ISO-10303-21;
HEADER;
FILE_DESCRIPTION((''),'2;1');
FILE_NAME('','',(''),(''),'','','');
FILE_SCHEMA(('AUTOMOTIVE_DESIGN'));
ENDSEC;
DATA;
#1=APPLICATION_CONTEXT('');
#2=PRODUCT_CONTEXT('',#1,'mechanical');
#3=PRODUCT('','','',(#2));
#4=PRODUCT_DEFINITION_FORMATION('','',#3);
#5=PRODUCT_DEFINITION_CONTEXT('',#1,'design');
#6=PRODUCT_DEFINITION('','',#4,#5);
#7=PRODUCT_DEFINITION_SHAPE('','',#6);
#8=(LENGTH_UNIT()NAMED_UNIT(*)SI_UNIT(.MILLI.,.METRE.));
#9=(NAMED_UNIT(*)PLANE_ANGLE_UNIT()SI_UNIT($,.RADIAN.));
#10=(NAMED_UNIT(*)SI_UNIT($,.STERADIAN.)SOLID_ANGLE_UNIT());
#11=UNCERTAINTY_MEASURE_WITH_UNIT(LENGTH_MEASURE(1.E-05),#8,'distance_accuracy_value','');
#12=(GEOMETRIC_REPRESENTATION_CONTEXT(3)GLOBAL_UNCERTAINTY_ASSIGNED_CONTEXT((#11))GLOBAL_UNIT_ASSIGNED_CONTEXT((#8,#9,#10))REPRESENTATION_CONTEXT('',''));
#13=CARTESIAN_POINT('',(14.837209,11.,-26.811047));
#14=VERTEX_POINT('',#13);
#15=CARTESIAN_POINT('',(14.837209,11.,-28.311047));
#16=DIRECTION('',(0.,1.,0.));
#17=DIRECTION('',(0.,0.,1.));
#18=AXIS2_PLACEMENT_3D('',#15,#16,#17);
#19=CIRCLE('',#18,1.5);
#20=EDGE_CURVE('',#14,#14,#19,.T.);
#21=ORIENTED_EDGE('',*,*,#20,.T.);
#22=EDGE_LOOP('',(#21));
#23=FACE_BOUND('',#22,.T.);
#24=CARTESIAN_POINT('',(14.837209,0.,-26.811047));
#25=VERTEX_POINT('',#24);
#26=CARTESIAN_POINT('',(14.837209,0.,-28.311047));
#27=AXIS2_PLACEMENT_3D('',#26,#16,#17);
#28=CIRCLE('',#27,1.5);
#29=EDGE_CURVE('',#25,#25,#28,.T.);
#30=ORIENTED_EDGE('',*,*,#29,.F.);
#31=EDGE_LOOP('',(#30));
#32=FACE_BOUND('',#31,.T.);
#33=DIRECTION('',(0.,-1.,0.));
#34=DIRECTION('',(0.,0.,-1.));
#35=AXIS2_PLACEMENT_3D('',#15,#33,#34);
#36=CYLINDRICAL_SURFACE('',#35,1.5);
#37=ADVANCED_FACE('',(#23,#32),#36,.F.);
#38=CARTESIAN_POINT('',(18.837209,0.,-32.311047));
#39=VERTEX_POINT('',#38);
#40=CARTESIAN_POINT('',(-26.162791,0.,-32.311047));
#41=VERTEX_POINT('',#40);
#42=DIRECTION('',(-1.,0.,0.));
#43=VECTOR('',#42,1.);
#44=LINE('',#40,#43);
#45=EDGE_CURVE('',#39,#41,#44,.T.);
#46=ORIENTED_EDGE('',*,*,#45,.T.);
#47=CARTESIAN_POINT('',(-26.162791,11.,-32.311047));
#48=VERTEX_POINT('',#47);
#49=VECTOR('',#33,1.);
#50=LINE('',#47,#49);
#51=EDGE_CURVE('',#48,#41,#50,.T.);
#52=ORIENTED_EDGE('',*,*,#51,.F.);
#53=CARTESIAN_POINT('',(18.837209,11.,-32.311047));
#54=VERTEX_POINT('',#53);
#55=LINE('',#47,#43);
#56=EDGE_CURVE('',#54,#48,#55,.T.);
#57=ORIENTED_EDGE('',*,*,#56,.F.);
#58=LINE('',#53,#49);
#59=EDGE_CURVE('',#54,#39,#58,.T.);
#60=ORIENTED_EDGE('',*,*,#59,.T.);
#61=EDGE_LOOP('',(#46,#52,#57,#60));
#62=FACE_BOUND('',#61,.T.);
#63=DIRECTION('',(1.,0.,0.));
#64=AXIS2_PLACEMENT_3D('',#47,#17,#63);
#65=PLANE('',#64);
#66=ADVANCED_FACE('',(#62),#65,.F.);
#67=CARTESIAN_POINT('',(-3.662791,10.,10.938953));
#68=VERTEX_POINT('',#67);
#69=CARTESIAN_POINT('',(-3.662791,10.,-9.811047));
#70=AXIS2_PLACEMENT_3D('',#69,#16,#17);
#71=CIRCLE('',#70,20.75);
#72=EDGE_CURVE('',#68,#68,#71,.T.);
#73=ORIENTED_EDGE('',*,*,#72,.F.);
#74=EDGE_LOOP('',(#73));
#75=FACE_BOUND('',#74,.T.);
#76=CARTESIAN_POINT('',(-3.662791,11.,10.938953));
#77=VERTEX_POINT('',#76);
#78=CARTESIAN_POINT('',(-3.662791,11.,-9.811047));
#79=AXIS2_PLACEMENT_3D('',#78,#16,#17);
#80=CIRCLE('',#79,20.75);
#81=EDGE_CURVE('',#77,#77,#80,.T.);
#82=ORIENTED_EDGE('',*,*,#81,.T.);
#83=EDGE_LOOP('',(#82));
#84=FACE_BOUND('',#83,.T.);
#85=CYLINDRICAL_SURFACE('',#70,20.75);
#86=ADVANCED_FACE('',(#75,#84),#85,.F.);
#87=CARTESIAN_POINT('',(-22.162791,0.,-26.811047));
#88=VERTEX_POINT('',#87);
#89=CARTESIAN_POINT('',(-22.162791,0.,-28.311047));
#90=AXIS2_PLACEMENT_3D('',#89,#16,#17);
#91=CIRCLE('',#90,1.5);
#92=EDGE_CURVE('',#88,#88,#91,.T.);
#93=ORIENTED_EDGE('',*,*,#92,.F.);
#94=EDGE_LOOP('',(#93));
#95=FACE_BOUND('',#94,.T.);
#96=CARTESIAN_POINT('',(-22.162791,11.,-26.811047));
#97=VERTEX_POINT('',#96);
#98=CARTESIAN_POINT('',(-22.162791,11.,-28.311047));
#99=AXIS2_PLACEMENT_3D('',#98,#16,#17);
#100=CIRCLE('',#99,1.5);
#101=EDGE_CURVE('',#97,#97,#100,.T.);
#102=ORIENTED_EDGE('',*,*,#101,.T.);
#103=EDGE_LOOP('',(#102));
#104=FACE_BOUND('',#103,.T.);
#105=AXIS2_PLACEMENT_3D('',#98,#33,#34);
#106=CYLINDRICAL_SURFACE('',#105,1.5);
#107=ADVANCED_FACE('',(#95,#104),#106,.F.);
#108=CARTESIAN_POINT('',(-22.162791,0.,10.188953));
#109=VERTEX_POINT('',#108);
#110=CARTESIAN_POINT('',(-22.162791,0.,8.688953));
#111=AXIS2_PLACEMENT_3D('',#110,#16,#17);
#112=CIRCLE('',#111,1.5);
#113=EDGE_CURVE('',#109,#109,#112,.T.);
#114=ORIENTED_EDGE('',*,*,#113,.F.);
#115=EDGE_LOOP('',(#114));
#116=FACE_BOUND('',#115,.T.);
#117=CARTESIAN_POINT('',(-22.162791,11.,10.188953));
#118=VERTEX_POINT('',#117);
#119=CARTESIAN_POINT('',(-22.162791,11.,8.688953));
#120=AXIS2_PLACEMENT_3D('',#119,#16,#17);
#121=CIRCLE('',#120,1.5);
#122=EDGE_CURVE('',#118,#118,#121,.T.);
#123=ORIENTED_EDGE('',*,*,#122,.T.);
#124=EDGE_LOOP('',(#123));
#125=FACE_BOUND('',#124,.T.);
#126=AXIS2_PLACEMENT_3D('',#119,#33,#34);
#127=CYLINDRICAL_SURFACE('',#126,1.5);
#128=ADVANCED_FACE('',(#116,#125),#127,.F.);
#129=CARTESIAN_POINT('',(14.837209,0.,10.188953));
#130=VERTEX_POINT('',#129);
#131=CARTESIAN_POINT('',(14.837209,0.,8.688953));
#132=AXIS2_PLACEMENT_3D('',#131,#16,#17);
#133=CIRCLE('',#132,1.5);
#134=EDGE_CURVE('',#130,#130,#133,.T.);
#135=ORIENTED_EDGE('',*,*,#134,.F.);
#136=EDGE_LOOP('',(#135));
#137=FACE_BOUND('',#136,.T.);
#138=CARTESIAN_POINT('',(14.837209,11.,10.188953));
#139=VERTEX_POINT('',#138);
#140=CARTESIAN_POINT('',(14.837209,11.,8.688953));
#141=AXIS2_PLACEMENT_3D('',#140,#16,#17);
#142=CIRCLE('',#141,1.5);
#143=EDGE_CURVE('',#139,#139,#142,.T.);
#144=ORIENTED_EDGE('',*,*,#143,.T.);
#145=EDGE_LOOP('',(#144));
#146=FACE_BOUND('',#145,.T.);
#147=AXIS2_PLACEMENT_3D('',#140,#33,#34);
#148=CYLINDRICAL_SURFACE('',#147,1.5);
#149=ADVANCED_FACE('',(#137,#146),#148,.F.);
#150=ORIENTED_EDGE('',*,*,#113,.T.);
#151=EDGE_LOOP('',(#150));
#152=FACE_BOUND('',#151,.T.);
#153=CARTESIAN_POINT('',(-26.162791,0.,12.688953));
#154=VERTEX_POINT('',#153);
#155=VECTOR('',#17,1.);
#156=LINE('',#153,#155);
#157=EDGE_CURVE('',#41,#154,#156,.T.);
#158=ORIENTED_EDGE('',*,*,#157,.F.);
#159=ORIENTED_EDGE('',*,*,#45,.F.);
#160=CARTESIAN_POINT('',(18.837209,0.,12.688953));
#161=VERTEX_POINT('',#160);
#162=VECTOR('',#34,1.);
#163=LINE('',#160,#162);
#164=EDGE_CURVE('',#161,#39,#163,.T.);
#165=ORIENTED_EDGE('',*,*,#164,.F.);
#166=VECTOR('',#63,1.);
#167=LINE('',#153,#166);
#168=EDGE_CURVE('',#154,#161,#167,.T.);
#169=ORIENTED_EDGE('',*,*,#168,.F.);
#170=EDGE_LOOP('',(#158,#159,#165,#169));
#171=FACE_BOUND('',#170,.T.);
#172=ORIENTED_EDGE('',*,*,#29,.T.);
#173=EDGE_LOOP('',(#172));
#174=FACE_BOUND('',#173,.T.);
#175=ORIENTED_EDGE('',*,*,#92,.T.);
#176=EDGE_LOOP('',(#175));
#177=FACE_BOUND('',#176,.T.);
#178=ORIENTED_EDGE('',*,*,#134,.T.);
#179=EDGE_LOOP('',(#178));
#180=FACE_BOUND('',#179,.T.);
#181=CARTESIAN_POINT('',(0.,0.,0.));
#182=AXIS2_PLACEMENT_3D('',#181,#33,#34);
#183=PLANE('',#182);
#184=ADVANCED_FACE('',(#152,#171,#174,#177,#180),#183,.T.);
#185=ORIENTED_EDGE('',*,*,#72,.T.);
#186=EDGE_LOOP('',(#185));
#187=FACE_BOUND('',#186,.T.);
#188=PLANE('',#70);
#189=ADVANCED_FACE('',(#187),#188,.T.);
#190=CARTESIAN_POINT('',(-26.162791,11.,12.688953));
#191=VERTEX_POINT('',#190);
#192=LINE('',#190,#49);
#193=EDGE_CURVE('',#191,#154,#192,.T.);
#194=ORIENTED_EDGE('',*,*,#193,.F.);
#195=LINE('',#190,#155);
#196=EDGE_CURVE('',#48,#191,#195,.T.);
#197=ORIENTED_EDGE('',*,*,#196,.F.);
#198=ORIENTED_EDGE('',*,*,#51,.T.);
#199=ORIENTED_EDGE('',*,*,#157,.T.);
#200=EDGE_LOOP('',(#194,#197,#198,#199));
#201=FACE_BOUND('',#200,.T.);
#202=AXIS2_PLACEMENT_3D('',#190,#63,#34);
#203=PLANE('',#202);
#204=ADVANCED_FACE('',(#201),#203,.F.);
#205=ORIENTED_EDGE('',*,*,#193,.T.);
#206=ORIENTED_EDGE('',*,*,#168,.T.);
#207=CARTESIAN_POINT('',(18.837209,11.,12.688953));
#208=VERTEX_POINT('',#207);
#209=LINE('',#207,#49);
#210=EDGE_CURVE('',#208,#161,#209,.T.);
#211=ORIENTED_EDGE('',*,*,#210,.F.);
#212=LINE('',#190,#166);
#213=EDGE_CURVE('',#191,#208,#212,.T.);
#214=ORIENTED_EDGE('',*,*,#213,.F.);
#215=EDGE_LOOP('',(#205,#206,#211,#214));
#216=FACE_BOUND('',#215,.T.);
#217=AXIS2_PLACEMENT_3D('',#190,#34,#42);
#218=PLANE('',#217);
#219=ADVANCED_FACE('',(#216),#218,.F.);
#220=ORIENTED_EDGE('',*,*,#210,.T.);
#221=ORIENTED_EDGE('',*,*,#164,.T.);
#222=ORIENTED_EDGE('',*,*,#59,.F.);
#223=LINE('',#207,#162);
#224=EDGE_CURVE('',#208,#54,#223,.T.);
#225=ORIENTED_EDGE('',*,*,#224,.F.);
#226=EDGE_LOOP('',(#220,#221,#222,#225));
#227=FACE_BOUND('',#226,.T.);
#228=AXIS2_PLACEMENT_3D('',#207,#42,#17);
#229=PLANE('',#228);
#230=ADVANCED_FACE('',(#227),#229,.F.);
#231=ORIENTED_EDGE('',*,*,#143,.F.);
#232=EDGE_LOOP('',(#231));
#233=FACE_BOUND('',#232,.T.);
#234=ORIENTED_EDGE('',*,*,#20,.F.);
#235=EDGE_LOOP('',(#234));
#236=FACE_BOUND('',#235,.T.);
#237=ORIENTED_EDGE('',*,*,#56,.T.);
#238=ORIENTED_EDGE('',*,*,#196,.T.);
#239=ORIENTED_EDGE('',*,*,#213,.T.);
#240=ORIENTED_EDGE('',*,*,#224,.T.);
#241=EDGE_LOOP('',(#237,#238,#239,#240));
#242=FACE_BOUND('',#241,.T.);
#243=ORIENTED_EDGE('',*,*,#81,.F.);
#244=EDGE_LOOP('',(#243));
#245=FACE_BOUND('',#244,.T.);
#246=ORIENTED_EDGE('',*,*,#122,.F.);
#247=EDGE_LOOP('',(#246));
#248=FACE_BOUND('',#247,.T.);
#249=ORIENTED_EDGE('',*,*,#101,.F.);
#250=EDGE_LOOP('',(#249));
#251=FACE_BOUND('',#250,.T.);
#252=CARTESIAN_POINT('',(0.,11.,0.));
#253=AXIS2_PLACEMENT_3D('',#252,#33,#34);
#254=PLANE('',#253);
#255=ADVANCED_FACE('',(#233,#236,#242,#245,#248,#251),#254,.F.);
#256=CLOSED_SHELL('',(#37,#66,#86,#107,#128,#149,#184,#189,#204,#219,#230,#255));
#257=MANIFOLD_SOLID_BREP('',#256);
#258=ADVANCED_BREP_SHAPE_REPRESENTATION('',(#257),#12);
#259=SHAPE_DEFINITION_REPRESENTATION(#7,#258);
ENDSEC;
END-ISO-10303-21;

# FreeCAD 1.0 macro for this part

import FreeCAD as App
import Part
import Sketcher

V = App.Vector

doc = App.newDocument("Part")
body = doc.addObject("PartDesign::Body", "Body")

sketch1 = doc.addObject("Sketcher::SketchObject", "Sketch")
body.addObject(sketch1)
sketch1.AttachmentSupport = (doc.XZ_Plane, [""])
sketch1.MapMode = "FlatFace"
sketch1.addGeometry([
    Part.LineSegment(V(-26.2, -32.3, 0), V(-26.2, 12.7, 0)),
    Part.LineSegment(V(-26.2, 12.7, 0), V(18.8, 12.7, 0)),
    Part.LineSegment(V(18.8, 12.7, 0), V(18.8, -32.3, 0)),
    Part.LineSegment(V(18.8, -32.3, 0), V(-26.2, -32.3, 0)),
    Part.Circle(V(-22.2, 8.7, 0), V(0, 0, 1), 1.5),
    Part.Circle(V(14.8, 8.7, 0), V(0, 0, 1), 1.5),
    Part.Circle(V(-22.2, -28.3, 0), V(0, 0, 1), 1.5),
    Part.Circle(V(14.8, -28.3, 0), V(0, 0, 1), 1.5),
], False)
sketch1.addConstraint([
    Sketcher.Constraint("Coincident", 0, 2, 1, 1),
    Sketcher.Constraint("Coincident", 1, 2, 2, 1),
    Sketcher.Constraint("Coincident", 2, 2, 3, 1),
    Sketcher.Constraint("Coincident", 3, 2, 0, 1),
    Sketcher.Constraint("Vertical", 0),
    Sketcher.Constraint("Horizontal", 1),
    Sketcher.Constraint("Vertical", 2),
    Sketcher.Constraint("Horizontal", 3),
    Sketcher.Constraint("Equal", 4, 5),
    Sketcher.Constraint("Equal", 5, 6),
    Sketcher.Constraint("Equal", 6, 7),
    Sketcher.Constraint("Horizontal", 4, 3, 5, 3),
    Sketcher.Constraint("Horizontal", 6, 3, 7, 3),
    Sketcher.Constraint("Vertical", 4, 3, 6, 3),
    Sketcher.Constraint("Vertical", 5, 3, 7, 3),
    Sketcher.Constraint("Equal", 3, 0),
    Sketcher.Constraint("Diameter", 4, 3.0),
    Sketcher.Constraint("DistanceX", 1, 1, 1, 2, 45.0),
    Sketcher.Constraint("DistanceX", 4, 3, 5, 3, 37.0),
    Sketcher.Constraint("DistanceY", 6, 3, 4, 3, 37.0),
    Sketcher.Constraint("DistanceX", 0, 2, 4, 3, 4.0),
    Sketcher.Constraint("DistanceY", 4, 3, 0, 2, 4.0),
    Sketcher.Constraint("DistanceX", 4, 3, -1, 1, 22.162791),
    Sketcher.Constraint("DistanceY", -1, 1, 4, 3, 8.688953),
])
pad1 = doc.addObject("PartDesign::Pad", "Pad")
body.addObject(pad1)
pad1.Profile = sketch1
pad1.Length = 11
pad1.Reversed = True

sketch2 = doc.addObject("Sketcher::SketchObject", "Sketch001")
body.addObject(sketch2)
sketch2.AttachmentSupport = (doc.XZ_Plane, [""])
sketch2.MapMode = "FlatFace"
sketch2.AttachmentOffset = App.Placement(V(0, 0, -11), App.Rotation())
sketch2.addGeometry(Part.Circle(V(-4, -10, 0), V(0, 0, 1), 21), False)
sketch2.addConstraint([
    Sketcher.Constraint("Diameter", 0, 41.5),
    Sketcher.Constraint("DistanceX", 0, 3, -1, 1, 3.662791),
    Sketcher.Constraint("DistanceY", 0, 3, -1, 1, 9.811047),
])
pocket1 = doc.addObject("PartDesign::Pocket", "Pocket")
body.addObject(pocket1)
pocket1.Profile = sketch2
pocket1.Length = 1
pocket1.Reversed = True

doc.recompute()
